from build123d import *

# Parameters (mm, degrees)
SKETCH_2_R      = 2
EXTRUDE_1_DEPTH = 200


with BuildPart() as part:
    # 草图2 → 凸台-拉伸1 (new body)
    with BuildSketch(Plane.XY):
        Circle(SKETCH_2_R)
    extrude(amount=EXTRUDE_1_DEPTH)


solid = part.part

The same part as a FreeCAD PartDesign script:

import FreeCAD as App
import Part
import Sketcher

V = App.Vector
Q = App.Units.Quantity

doc = App.newDocument("Part")
params = doc.addObject("Spreadsheet::Sheet", "Params")
for row, (alias, value) in enumerate([
    ("sketch1_diameter", "4 mm"),
    ("pad1_length", "200 mm"),
], start=1):
    params.set(f"A{row}", alias)
    params.set(f"B{row}", "=" + value)
    params.setAlias(f"B{row}", alias)

body = doc.addObject("PartDesign::Body", "Body")

# Sketch on XY plane
sketch1 = body.newObject("Sketcher::SketchObject", "Sketch")
sketch1.AttachmentSupport = (doc.getObject("XY_Plane"), [""])
sketch1.MapMode = "FlatFace"
sketch1.addGeometry(Part.Circle(V(0, 0, 0), V(0, 0, 1), 2), False)
sketch1.addConstraint(Sketcher.Constraint("Coincident", 0, 3, -1, 1))
sketch1.addConstraint(Sketcher.Constraint("Diameter", 0, Q("4 mm")))
sketch1.setExpression("Constraints[1]", "Params.sketch1_diameter")
pad1 = body.newObject("PartDesign::Pad", "Pad")
pad1.Profile = sketch1
pad1.setExpression("Length", "Params.pad1_length")

doc.recompute()
